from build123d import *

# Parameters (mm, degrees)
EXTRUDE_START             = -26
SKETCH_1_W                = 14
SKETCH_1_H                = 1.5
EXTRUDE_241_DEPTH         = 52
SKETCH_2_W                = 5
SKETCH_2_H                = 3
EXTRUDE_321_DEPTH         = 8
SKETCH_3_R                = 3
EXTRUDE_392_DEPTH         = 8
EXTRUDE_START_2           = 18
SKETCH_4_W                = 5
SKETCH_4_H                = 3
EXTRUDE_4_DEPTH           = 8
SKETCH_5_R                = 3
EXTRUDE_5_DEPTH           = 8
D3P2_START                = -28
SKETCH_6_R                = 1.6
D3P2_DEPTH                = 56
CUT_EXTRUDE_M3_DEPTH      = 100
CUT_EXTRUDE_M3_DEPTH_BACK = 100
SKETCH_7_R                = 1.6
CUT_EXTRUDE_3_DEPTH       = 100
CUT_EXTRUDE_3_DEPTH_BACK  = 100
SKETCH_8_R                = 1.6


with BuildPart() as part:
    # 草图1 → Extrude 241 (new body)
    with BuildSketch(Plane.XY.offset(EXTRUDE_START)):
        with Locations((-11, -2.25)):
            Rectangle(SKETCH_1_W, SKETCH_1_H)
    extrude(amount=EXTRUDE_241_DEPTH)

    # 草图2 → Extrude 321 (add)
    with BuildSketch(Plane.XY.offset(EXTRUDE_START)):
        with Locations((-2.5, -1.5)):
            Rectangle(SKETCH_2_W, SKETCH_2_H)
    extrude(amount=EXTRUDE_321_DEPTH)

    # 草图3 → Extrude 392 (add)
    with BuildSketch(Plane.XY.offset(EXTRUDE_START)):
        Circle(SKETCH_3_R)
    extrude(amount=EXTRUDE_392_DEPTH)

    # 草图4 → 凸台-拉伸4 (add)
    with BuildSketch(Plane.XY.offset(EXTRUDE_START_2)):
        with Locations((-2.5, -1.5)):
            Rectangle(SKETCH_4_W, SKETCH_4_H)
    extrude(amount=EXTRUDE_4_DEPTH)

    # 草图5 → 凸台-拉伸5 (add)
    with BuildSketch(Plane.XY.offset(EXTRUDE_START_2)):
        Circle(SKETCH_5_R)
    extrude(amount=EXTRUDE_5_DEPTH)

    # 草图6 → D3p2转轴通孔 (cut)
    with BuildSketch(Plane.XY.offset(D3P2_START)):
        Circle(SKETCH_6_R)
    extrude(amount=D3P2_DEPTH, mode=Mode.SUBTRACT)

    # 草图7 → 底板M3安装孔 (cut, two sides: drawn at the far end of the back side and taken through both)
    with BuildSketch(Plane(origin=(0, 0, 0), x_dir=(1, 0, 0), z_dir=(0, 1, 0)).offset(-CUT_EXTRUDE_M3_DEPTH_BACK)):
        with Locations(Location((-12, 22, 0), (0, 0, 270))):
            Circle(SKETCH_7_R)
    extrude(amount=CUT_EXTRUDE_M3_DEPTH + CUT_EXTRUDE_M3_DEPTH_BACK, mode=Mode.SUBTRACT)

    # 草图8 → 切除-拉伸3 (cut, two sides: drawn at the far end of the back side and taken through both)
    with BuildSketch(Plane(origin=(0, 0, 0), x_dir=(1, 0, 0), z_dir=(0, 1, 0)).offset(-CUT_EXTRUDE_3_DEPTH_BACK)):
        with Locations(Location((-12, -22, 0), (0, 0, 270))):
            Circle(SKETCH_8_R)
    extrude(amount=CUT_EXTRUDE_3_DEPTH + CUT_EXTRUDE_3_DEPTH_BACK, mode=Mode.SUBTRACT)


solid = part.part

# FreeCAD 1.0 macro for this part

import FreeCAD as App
import Part
import Sketcher
Q = App.Units.Quantity


def add_polygon(sketch, points):
    """Adds a closed chain of lines whose ends are joined by coincident constraints."""
    first, n = sketch.GeometryCount, len(points)
    for a, b in zip(points, points[1:] + points[:1]):
        sketch.addGeometry(Part.LineSegment(App.Vector(*a, 0), App.Vector(*b, 0)), False)
    for i in range(n):
        sketch.addConstraint(Sketcher.Constraint("Coincident", first + i, 2, first + (i + 1) % n, 1))

doc = App.newDocument("Part")
params = doc.addObject("Spreadsheet::Sheet", "Params")
for row, (alias, value) in enumerate([
    ("sketch1_width", "14 mm"),
    ("sketch1_height", "1.5 mm"),
    ("pad1_length", "52 mm"),
    ("sketch2_width", "5 mm"),
    ("sketch2_height", "3 mm"),
    ("pad2_length", "8 mm"),
    ("sketch3_diameter", "6 mm"),
    ("pad3_length", "8 mm"),
    ("sketch4_width", "5 mm"),
    ("sketch4_height", "3 mm"),
    ("pad4_length", "8 mm"),
    ("sketch5_diameter", "6 mm"),
    ("pad5_length", "8 mm"),
    ("sketch6_diameter", "3.2 mm"),
    ("pocket1_length", "56 mm"),
    ("sketch7_diameter", "3.2 mm"),
    ("sketch8_diameter", "3.2 mm"),
], start=1):
    params.set(f"A{row}", alias)
    params.set(f"B{row}", "=" + value)
    params.setAlias(f"B{row}", alias)

body = doc.addObject("PartDesign::Body", "Body")

# Sketch on XY plane
sketch1 = body.newObject("Sketcher::SketchObject", "Sketch")
sketch1.AttachmentSupport = (doc.getObject("XY_Plane"), [""])
sketch1.MapMode = "FlatFace"
sketch1.AttachmentOffset = App.Placement(App.Vector(0, 0, -26), App.Rotation())
add_polygon(sketch1, [(-18, -1.5), (-18, -3), (-4, -3), (-4, -1.5)])  # lines 0-3
sketch1.addConstraint([
    Sketcher.Constraint("Vertical", 0),
    Sketcher.Constraint("Horizontal", 1),
    Sketcher.Constraint("Vertical", 2),
    Sketcher.Constraint("Horizontal", 3),
    Sketcher.Constraint("DistanceX", 1, 1, 1, 2, Q("14 mm")),
    Sketcher.Constraint("DistanceY", 0, 2, 0, 1, Q("1.5 mm")),
    Sketcher.Constraint("DistanceX", 0, 2, -1, 1, Q("18 mm")),
    Sketcher.Constraint("DistanceY", 0, 2, -1, 1, Q("3 mm")),
])
sketch1.setExpression("Constraints[8]", "Params.sketch1_width")
sketch1.setExpression("Constraints[9]", "Params.sketch1_height")
pad1 = body.newObject("PartDesign::Pad", "Pad")
pad1.Profile = sketch1
pad1.setExpression("Length", "Params.pad1_length")

# Sketch on XY plane
sketch2 = body.newObject("Sketcher::SketchObject", "Sketch001")
sketch2.AttachmentSupport = (doc.getObject("XY_Plane"), [""])
sketch2.MapMode = "FlatFace"
sketch2.AttachmentOffset = App.Placement(App.Vector(0, 0, -26), App.Rotation())
add_polygon(sketch2, [(-5, 0), (-5, -3), (0, -3), (0, 0)])  # lines 0-3
sketch2.addConstraint([
    Sketcher.Constraint("Vertical", 0),
    Sketcher.Constraint("Horizontal", 1),
    Sketcher.Constraint("Vertical", 2),
    Sketcher.Constraint("Horizontal", 3),
    Sketcher.Constraint("Coincident", 2, 2, -1, 1),
    Sketcher.Constraint("DistanceX", 1, 1, 1, 2, Q("5 mm")),
    Sketcher.Constraint("DistanceY", 0, 2, 0, 1, Q("3 mm")),
])
sketch2.setExpression("Constraints[9]", "Params.sketch2_width")
sketch2.setExpression("Constraints[10]", "Params.sketch2_height")
pad2 = body.newObject("PartDesign::Pad", "Pad001")
pad2.Profile = sketch2
pad2.setExpression("Length", "Params.pad2_length")

# Sketch on XY plane
sketch3 = body.newObject("Sketcher::SketchObject", "Sketch002")
sketch3.AttachmentSupport = (doc.getObject("XY_Plane"), [""])
sketch3.MapMode = "FlatFace"
sketch3.AttachmentOffset = App.Placement(App.Vector(0, 0, -26), App.Rotation())
sketch3.addGeometry(Part.Circle(App.Vector(0, 0, 0), App.Vector(0, 0, 1), 3), False)
sketch3.addConstraint([
    Sketcher.Constraint("Coincident", 0, 3, -1, 1),
    Sketcher.Constraint("Diameter", 0, Q("6 mm")),
])
sketch3.setExpression("Constraints[1]", "Params.sketch3_diameter")
pad3 = body.newObject("PartDesign::Pad", "Pad002")
pad3.Profile = sketch3
pad3.setExpression("Length", "Params.pad3_length")

# Sketch on XY plane
sketch4 = body.newObject("Sketcher::SketchObject", "Sketch003")
sketch4.AttachmentSupport = (doc.getObject("XY_Plane"), [""])
sketch4.MapMode = "FlatFace"
sketch4.AttachmentOffset = App.Placement(App.Vector(0, 0, 18), App.Rotation())
add_polygon(sketch4, [(-5, 0), (-5, -3), (0, -3), (0, 0)])  # lines 0-3
sketch4.addConstraint([
    Sketcher.Constraint("Vertical", 0),
    Sketcher.Constraint("Horizontal", 1),
    Sketcher.Constraint("Vertical", 2),
    Sketcher.Constraint("Horizontal", 3),
    Sketcher.Constraint("Coincident", 2, 2, -1, 1),
    Sketcher.Constraint("DistanceX", 1, 1, 1, 2, Q("5 mm")),
    Sketcher.Constraint("DistanceY", 0, 2, 0, 1, Q("3 mm")),
])
sketch4.setExpression("Constraints[9]", "Params.sketch4_width")
sketch4.setExpression("Constraints[10]", "Params.sketch4_height")
pad4 = body.newObject("PartDesign::Pad", "Pad003")
pad4.Profile = sketch4
pad4.setExpression("Length", "Params.pad4_length")

# Sketch on XY plane
sketch5 = body.newObject("Sketcher::SketchObject", "Sketch004")
sketch5.AttachmentSupport = (doc.getObject("XY_Plane"), [""])
sketch5.MapMode = "FlatFace"
sketch5.AttachmentOffset = App.Placement(App.Vector(0, 0, 18), App.Rotation())
sketch5.addGeometry(Part.Circle(App.Vector(0, 0, 0), App.Vector(0, 0, 1), 3), False)
sketch5.addConstraint([
    Sketcher.Constraint("Coincident", 0, 3, -1, 1),
    Sketcher.Constraint("Diameter", 0, Q("6 mm")),
])
sketch5.setExpression("Constraints[1]", "Params.sketch5_diameter")
pad5 = body.newObject("PartDesign::Pad", "Pad004")
pad5.Profile = sketch5
pad5.setExpression("Length", "Params.pad5_length")

# Sketch on XY plane
sketch6 = body.newObject("Sketcher::SketchObject", "Sketch005")
sketch6.AttachmentSupport = (doc.getObject("XY_Plane"), [""])
sketch6.MapMode = "FlatFace"
sketch6.AttachmentOffset = App.Placement(App.Vector(0, 0, -28), App.Rotation())
sketch6.addGeometry(Part.Circle(App.Vector(0, 0, 0), App.Vector(0, 0, 1), 1.6), False)
sketch6.addConstraint([
    Sketcher.Constraint("Coincident", 0, 3, -1, 1),
    Sketcher.Constraint("Diameter", 0, Q("3.2 mm")),
])
sketch6.setExpression("Constraints[1]", "Params.sketch6_diameter")
pocket1 = body.newObject("PartDesign::Pocket", "Pocket")
pocket1.Profile = sketch6
pocket1.setExpression("Length", "Params.pocket1_length")
pocket1.Reversed = True

# Sketch on XZ plane
sketch7 = body.newObject("Sketcher::SketchObject", "Sketch006")
sketch7.AttachmentSupport = (doc.getObject("XZ_Plane"), [""])
sketch7.MapMode = "FlatFace"
sketch7.addGeometry(Part.Circle(App.Vector(-12, -22, 0), App.Vector(0, 0, 1), 1.6), False)
sketch7.addConstraint([
    Sketcher.Constraint("Diameter", 0, Q("3.2 mm")),
    Sketcher.Constraint("DistanceX", 0, 3, -1, 1, Q("12 mm")),
    Sketcher.Constraint("DistanceY", 0, 3, -1, 1, Q("22 mm")),
])
sketch7.setExpression("Constraints[0]", "Params.sketch7_diameter")
pocket2 = body.newObject("PartDesign::Pocket", "Pocket001")
pocket2.Profile = sketch7
pocket2.Type = "ThroughAll"
pocket2.Midplane = True

# Sketch on XZ plane
sketch8 = body.newObject("Sketcher::SketchObject", "Sketch007")
sketch8.AttachmentSupport = (doc.getObject("XZ_Plane"), [""])
sketch8.MapMode = "FlatFace"
sketch8.addGeometry(Part.Circle(App.Vector(-12, 22, 0), App.Vector(0, 0, 1), 1.6), False)
sketch8.addConstraint([
    Sketcher.Constraint("Diameter", 0, Q("3.2 mm")),
    Sketcher.Constraint("DistanceX", 0, 3, -1, 1, Q("12 mm")),
    Sketcher.Constraint("DistanceY", -1, 1, 0, 3, Q("22 mm")),
])
sketch8.setExpression("Constraints[0]", "Params.sketch8_diameter")
pocket3 = body.newObject("PartDesign::Pocket", "Pocket002")
pocket3.Profile = sketch8
pocket3.Type = "ThroughAll"
pocket3.Midplane = True

doc.recompute()
